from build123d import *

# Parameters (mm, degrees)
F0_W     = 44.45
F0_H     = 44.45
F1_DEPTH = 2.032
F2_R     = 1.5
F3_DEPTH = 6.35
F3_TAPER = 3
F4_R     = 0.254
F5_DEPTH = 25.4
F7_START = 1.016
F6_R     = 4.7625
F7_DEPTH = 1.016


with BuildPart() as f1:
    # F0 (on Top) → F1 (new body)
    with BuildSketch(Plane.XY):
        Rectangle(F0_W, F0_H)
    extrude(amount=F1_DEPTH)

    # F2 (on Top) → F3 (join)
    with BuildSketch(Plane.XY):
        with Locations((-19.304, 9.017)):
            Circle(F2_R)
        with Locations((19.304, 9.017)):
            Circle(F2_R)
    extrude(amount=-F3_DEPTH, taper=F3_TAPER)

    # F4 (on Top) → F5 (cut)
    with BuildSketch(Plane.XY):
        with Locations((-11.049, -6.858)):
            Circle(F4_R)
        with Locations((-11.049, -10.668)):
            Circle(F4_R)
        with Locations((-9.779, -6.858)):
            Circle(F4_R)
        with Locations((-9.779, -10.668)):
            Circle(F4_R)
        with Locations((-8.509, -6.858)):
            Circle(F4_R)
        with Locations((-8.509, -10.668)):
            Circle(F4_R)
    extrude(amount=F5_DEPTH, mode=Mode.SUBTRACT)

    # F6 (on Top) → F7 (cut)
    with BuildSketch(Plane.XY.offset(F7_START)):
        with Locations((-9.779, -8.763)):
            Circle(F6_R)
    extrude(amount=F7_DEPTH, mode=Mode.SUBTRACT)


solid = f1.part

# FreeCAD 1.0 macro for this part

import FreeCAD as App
import Part
import Sketcher
Q = App.Units.Quantity

doc = App.newDocument("Part")
params = doc.addObject("Spreadsheet::Sheet", "Params")
for row, (alias, value) in enumerate([
    ("sketch1_width", "1.75 in"),
    ("pad1_length", "0.08 in"),
    ("pad2_length", "0.25 in"),
    ("pad2_taper", "-3 deg"),
    ("sketch3_diameter", "0.02 in"),
    ("pocket1_length", "1 in"),
    ("sketch4_diameter", "0.375 in"),
    ("pocket2_length", "0.04 in"),
], start=1):
    params.set(f"A{row}", alias)
    params.set(f"B{row}", "=" + value)
    params.setAlias(f"B{row}", alias)

body = doc.addObject("PartDesign::Body", "Body")

sketch1 = doc.addObject("Sketcher::SketchObject", "Sketch")
body.addObject(sketch1)
sketch1.AttachmentSupport = (doc.XY_Plane, [""])
sketch1.MapMode = "FlatFace"
sketch1.addGeometry(Part.LineSegment(App.Vector(-22.225, 22.225, 0), App.Vector(-22.225, -22.225, 0)), False)
sketch1.addGeometry(Part.LineSegment(App.Vector(-22.225, -22.225, 0), App.Vector(22.225, -22.225, 0)), False)
sketch1.addGeometry(Part.LineSegment(App.Vector(22.225, -22.225, 0), App.Vector(22.225, 22.225, 0)), False)
sketch1.addGeometry(Part.LineSegment(App.Vector(22.225, 22.225, 0), App.Vector(-22.225, 22.225, 0)), False)
sketch1.addConstraint(Sketcher.Constraint("Coincident", 0, 2, 1, 1))
sketch1.addConstraint(Sketcher.Constraint("Coincident", 1, 2, 2, 1))
sketch1.addConstraint(Sketcher.Constraint("Coincident", 2, 2, 3, 1))
sketch1.addConstraint(Sketcher.Constraint("Coincident", 3, 2, 0, 1))
sketch1.addConstraint(Sketcher.Constraint("Vertical", 0))
sketch1.addConstraint(Sketcher.Constraint("Horizontal", 1))
sketch1.addConstraint(Sketcher.Constraint("Vertical", 2))
sketch1.addConstraint(Sketcher.Constraint("Horizontal", 3))
sketch1.addConstraint(Sketcher.Constraint("Symmetric", 0, 2, 2, 2, -1, 1))
sketch1.addConstraint(Sketcher.Constraint("Equal", 3, 0))
sketch1.addConstraint(Sketcher.Constraint("DistanceX", 1, 1, 1, 2, Q("1.75 in")))
sketch1.setExpression("Constraints[10]", "Params.sketch1_width")
pad1 = doc.addObject("PartDesign::Pad", "Pad")
body.addObject(pad1)
pad1.Profile = sketch1
pad1.setExpression("Length", "Params.pad1_length")

sketch2 = doc.addObject("Sketcher::SketchObject", "Sketch001")
body.addObject(sketch2)
sketch2.AttachmentSupport = (doc.XY_Plane, [""])
sketch2.MapMode = "FlatFace"
sketch2.addGeometry(Part.Circle(App.Vector(-19.304, 9.017, 0), App.Vector(0, 0, 1), 1.5), False)
sketch2.addGeometry(Part.Circle(App.Vector(19.304, 9.017, 0), App.Vector(0, 0, 1), 1.5), False)
sketch2.addConstraint(Sketcher.Constraint("Equal", 0, 1))
sketch2.addConstraint(Sketcher.Constraint("Symmetric", 0, 3, 1, 3, -2))
sketch2.addConstraint(Sketcher.Constraint("Diameter", 0, Q("3 mm")))
sketch2.addConstraint(Sketcher.Constraint("DistanceX", 0, 3, -1, 1, Q("0.76 in")))
sketch2.addConstraint(Sketcher.Constraint("DistanceY", -1, 1, 0, 3, Q("0.355 in")))
pad2 = doc.addObject("PartDesign::Pad", "Pad001")
body.addObject(pad2)
pad2.Profile = sketch2
pad2.setExpression("Length", "Params.pad2_length")
pad2.Reversed = True
pad2.setExpression("TaperAngle", "Params.pad2_taper")

sketch3 = doc.addObject("Sketcher::SketchObject", "Sketch002")
body.addObject(sketch3)
sketch3.AttachmentSupport = (doc.XY_Plane, [""])
sketch3.MapMode = "FlatFace"
sketch3.addGeometry(Part.Circle(App.Vector(-11.049, -6.858, 0), App.Vector(0, 0, 1), 0.254), False)
sketch3.addGeometry(Part.Circle(App.Vector(-11.049, -10.668, 0), App.Vector(0, 0, 1), 0.254), False)
sketch3.addGeometry(Part.Circle(App.Vector(-9.779, -6.858, 0), App.Vector(0, 0, 1), 0.254), False)
sketch3.addGeometry(Part.Circle(App.Vector(-9.779, -10.668, 0), App.Vector(0, 0, 1), 0.254), False)
sketch3.addGeometry(Part.Circle(App.Vector(-8.509, -6.858, 0), App.Vector(0, 0, 1), 0.254), False)
sketch3.addGeometry(Part.Circle(App.Vector(-8.509, -10.668, 0), App.Vector(0, 0, 1), 0.254), False)
sketch3.addConstraint(Sketcher.Constraint("Equal", 0, 1))
sketch3.addConstraint(Sketcher.Constraint("Equal", 1, 2))
sketch3.addConstraint(Sketcher.Constraint("Equal", 2, 3))
sketch3.addConstraint(Sketcher.Constraint("Equal", 3, 4))
sketch3.addConstraint(Sketcher.Constraint("Equal", 4, 5))
sketch3.addConstraint(Sketcher.Constraint("Horizontal", 0, 3, 2, 3))
sketch3.addConstraint(Sketcher.Constraint("Horizontal", 1, 3, 3, 3))
sketch3.addConstraint(Sketcher.Constraint("Horizontal", 2, 3, 4, 3))
sketch3.addConstraint(Sketcher.Constraint("Horizontal", 3, 3, 5, 3))
sketch3.addConstraint(Sketcher.Constraint("Vertical", 0, 3, 1, 3))
sketch3.addConstraint(Sketcher.Constraint("Vertical", 2, 3, 3, 3))
sketch3.addConstraint(Sketcher.Constraint("Vertical", 4, 3, 5, 3))
sketch3.addConstraint(Sketcher.Constraint("Diameter", 0, Q("0.02 in")))
sketch3.addConstraint(Sketcher.Constraint("DistanceX", 0, 3, 4, 3, Q("0.1 in")))
sketch3.addConstraint(Sketcher.Constraint("DistanceY", 0, 3, -1, 1, Q("0.27 in")))
sketch3.addConstraint(Sketcher.Constraint("DistanceY", 1, 3, -1, 1, Q("0.42 in")))
sketch3.addConstraint(Sketcher.Constraint("DistanceX", 0, 3, 2, 3, Q("0.05 in")))
sketch3.addConstraint(Sketcher.Constraint("DistanceX", 0, 3, -1, 1, Q("0.435 in")))
sketch3.setExpression("Constraints[12]", "Params.sketch3_diameter")
pocket1 = doc.addObject("PartDesign::Pocket", "Pocket")
body.addObject(pocket1)
pocket1.Profile = sketch3
pocket1.setExpression("Length", "Params.pocket1_length")
pocket1.Reversed = True

sketch4 = doc.addObject("Sketcher::SketchObject", "Sketch003")
body.addObject(sketch4)
sketch4.AttachmentSupport = (doc.XY_Plane, [""])
sketch4.MapMode = "FlatFace"
sketch4.AttachmentOffset = App.Placement(App.Vector(0, 0, 0.04 * 25.4), App.Rotation())
sketch4.addGeometry(Part.Circle(App.Vector(-9.779, -8.763, 0), App.Vector(0, 0, 1), 4.7625), False)
sketch4.addConstraint(Sketcher.Constraint("Diameter", 0, Q("0.375 in")))
sketch4.addConstraint(Sketcher.Constraint("DistanceX", 0, 3, -1, 1, Q("0.385 in")))
sketch4.addConstraint(Sketcher.Constraint("DistanceY", 0, 3, -1, 1, Q("0.345 in")))
sketch4.setExpression("Constraints[0]", "Params.sketch4_diameter")
pocket2 = doc.addObject("PartDesign::Pocket", "Pocket001")
body.addObject(pocket2)
pocket2.Profile = sketch4
pocket2.setExpression("Length", "Params.pocket2_length")
pocket2.Reversed = True

doc.recompute()
